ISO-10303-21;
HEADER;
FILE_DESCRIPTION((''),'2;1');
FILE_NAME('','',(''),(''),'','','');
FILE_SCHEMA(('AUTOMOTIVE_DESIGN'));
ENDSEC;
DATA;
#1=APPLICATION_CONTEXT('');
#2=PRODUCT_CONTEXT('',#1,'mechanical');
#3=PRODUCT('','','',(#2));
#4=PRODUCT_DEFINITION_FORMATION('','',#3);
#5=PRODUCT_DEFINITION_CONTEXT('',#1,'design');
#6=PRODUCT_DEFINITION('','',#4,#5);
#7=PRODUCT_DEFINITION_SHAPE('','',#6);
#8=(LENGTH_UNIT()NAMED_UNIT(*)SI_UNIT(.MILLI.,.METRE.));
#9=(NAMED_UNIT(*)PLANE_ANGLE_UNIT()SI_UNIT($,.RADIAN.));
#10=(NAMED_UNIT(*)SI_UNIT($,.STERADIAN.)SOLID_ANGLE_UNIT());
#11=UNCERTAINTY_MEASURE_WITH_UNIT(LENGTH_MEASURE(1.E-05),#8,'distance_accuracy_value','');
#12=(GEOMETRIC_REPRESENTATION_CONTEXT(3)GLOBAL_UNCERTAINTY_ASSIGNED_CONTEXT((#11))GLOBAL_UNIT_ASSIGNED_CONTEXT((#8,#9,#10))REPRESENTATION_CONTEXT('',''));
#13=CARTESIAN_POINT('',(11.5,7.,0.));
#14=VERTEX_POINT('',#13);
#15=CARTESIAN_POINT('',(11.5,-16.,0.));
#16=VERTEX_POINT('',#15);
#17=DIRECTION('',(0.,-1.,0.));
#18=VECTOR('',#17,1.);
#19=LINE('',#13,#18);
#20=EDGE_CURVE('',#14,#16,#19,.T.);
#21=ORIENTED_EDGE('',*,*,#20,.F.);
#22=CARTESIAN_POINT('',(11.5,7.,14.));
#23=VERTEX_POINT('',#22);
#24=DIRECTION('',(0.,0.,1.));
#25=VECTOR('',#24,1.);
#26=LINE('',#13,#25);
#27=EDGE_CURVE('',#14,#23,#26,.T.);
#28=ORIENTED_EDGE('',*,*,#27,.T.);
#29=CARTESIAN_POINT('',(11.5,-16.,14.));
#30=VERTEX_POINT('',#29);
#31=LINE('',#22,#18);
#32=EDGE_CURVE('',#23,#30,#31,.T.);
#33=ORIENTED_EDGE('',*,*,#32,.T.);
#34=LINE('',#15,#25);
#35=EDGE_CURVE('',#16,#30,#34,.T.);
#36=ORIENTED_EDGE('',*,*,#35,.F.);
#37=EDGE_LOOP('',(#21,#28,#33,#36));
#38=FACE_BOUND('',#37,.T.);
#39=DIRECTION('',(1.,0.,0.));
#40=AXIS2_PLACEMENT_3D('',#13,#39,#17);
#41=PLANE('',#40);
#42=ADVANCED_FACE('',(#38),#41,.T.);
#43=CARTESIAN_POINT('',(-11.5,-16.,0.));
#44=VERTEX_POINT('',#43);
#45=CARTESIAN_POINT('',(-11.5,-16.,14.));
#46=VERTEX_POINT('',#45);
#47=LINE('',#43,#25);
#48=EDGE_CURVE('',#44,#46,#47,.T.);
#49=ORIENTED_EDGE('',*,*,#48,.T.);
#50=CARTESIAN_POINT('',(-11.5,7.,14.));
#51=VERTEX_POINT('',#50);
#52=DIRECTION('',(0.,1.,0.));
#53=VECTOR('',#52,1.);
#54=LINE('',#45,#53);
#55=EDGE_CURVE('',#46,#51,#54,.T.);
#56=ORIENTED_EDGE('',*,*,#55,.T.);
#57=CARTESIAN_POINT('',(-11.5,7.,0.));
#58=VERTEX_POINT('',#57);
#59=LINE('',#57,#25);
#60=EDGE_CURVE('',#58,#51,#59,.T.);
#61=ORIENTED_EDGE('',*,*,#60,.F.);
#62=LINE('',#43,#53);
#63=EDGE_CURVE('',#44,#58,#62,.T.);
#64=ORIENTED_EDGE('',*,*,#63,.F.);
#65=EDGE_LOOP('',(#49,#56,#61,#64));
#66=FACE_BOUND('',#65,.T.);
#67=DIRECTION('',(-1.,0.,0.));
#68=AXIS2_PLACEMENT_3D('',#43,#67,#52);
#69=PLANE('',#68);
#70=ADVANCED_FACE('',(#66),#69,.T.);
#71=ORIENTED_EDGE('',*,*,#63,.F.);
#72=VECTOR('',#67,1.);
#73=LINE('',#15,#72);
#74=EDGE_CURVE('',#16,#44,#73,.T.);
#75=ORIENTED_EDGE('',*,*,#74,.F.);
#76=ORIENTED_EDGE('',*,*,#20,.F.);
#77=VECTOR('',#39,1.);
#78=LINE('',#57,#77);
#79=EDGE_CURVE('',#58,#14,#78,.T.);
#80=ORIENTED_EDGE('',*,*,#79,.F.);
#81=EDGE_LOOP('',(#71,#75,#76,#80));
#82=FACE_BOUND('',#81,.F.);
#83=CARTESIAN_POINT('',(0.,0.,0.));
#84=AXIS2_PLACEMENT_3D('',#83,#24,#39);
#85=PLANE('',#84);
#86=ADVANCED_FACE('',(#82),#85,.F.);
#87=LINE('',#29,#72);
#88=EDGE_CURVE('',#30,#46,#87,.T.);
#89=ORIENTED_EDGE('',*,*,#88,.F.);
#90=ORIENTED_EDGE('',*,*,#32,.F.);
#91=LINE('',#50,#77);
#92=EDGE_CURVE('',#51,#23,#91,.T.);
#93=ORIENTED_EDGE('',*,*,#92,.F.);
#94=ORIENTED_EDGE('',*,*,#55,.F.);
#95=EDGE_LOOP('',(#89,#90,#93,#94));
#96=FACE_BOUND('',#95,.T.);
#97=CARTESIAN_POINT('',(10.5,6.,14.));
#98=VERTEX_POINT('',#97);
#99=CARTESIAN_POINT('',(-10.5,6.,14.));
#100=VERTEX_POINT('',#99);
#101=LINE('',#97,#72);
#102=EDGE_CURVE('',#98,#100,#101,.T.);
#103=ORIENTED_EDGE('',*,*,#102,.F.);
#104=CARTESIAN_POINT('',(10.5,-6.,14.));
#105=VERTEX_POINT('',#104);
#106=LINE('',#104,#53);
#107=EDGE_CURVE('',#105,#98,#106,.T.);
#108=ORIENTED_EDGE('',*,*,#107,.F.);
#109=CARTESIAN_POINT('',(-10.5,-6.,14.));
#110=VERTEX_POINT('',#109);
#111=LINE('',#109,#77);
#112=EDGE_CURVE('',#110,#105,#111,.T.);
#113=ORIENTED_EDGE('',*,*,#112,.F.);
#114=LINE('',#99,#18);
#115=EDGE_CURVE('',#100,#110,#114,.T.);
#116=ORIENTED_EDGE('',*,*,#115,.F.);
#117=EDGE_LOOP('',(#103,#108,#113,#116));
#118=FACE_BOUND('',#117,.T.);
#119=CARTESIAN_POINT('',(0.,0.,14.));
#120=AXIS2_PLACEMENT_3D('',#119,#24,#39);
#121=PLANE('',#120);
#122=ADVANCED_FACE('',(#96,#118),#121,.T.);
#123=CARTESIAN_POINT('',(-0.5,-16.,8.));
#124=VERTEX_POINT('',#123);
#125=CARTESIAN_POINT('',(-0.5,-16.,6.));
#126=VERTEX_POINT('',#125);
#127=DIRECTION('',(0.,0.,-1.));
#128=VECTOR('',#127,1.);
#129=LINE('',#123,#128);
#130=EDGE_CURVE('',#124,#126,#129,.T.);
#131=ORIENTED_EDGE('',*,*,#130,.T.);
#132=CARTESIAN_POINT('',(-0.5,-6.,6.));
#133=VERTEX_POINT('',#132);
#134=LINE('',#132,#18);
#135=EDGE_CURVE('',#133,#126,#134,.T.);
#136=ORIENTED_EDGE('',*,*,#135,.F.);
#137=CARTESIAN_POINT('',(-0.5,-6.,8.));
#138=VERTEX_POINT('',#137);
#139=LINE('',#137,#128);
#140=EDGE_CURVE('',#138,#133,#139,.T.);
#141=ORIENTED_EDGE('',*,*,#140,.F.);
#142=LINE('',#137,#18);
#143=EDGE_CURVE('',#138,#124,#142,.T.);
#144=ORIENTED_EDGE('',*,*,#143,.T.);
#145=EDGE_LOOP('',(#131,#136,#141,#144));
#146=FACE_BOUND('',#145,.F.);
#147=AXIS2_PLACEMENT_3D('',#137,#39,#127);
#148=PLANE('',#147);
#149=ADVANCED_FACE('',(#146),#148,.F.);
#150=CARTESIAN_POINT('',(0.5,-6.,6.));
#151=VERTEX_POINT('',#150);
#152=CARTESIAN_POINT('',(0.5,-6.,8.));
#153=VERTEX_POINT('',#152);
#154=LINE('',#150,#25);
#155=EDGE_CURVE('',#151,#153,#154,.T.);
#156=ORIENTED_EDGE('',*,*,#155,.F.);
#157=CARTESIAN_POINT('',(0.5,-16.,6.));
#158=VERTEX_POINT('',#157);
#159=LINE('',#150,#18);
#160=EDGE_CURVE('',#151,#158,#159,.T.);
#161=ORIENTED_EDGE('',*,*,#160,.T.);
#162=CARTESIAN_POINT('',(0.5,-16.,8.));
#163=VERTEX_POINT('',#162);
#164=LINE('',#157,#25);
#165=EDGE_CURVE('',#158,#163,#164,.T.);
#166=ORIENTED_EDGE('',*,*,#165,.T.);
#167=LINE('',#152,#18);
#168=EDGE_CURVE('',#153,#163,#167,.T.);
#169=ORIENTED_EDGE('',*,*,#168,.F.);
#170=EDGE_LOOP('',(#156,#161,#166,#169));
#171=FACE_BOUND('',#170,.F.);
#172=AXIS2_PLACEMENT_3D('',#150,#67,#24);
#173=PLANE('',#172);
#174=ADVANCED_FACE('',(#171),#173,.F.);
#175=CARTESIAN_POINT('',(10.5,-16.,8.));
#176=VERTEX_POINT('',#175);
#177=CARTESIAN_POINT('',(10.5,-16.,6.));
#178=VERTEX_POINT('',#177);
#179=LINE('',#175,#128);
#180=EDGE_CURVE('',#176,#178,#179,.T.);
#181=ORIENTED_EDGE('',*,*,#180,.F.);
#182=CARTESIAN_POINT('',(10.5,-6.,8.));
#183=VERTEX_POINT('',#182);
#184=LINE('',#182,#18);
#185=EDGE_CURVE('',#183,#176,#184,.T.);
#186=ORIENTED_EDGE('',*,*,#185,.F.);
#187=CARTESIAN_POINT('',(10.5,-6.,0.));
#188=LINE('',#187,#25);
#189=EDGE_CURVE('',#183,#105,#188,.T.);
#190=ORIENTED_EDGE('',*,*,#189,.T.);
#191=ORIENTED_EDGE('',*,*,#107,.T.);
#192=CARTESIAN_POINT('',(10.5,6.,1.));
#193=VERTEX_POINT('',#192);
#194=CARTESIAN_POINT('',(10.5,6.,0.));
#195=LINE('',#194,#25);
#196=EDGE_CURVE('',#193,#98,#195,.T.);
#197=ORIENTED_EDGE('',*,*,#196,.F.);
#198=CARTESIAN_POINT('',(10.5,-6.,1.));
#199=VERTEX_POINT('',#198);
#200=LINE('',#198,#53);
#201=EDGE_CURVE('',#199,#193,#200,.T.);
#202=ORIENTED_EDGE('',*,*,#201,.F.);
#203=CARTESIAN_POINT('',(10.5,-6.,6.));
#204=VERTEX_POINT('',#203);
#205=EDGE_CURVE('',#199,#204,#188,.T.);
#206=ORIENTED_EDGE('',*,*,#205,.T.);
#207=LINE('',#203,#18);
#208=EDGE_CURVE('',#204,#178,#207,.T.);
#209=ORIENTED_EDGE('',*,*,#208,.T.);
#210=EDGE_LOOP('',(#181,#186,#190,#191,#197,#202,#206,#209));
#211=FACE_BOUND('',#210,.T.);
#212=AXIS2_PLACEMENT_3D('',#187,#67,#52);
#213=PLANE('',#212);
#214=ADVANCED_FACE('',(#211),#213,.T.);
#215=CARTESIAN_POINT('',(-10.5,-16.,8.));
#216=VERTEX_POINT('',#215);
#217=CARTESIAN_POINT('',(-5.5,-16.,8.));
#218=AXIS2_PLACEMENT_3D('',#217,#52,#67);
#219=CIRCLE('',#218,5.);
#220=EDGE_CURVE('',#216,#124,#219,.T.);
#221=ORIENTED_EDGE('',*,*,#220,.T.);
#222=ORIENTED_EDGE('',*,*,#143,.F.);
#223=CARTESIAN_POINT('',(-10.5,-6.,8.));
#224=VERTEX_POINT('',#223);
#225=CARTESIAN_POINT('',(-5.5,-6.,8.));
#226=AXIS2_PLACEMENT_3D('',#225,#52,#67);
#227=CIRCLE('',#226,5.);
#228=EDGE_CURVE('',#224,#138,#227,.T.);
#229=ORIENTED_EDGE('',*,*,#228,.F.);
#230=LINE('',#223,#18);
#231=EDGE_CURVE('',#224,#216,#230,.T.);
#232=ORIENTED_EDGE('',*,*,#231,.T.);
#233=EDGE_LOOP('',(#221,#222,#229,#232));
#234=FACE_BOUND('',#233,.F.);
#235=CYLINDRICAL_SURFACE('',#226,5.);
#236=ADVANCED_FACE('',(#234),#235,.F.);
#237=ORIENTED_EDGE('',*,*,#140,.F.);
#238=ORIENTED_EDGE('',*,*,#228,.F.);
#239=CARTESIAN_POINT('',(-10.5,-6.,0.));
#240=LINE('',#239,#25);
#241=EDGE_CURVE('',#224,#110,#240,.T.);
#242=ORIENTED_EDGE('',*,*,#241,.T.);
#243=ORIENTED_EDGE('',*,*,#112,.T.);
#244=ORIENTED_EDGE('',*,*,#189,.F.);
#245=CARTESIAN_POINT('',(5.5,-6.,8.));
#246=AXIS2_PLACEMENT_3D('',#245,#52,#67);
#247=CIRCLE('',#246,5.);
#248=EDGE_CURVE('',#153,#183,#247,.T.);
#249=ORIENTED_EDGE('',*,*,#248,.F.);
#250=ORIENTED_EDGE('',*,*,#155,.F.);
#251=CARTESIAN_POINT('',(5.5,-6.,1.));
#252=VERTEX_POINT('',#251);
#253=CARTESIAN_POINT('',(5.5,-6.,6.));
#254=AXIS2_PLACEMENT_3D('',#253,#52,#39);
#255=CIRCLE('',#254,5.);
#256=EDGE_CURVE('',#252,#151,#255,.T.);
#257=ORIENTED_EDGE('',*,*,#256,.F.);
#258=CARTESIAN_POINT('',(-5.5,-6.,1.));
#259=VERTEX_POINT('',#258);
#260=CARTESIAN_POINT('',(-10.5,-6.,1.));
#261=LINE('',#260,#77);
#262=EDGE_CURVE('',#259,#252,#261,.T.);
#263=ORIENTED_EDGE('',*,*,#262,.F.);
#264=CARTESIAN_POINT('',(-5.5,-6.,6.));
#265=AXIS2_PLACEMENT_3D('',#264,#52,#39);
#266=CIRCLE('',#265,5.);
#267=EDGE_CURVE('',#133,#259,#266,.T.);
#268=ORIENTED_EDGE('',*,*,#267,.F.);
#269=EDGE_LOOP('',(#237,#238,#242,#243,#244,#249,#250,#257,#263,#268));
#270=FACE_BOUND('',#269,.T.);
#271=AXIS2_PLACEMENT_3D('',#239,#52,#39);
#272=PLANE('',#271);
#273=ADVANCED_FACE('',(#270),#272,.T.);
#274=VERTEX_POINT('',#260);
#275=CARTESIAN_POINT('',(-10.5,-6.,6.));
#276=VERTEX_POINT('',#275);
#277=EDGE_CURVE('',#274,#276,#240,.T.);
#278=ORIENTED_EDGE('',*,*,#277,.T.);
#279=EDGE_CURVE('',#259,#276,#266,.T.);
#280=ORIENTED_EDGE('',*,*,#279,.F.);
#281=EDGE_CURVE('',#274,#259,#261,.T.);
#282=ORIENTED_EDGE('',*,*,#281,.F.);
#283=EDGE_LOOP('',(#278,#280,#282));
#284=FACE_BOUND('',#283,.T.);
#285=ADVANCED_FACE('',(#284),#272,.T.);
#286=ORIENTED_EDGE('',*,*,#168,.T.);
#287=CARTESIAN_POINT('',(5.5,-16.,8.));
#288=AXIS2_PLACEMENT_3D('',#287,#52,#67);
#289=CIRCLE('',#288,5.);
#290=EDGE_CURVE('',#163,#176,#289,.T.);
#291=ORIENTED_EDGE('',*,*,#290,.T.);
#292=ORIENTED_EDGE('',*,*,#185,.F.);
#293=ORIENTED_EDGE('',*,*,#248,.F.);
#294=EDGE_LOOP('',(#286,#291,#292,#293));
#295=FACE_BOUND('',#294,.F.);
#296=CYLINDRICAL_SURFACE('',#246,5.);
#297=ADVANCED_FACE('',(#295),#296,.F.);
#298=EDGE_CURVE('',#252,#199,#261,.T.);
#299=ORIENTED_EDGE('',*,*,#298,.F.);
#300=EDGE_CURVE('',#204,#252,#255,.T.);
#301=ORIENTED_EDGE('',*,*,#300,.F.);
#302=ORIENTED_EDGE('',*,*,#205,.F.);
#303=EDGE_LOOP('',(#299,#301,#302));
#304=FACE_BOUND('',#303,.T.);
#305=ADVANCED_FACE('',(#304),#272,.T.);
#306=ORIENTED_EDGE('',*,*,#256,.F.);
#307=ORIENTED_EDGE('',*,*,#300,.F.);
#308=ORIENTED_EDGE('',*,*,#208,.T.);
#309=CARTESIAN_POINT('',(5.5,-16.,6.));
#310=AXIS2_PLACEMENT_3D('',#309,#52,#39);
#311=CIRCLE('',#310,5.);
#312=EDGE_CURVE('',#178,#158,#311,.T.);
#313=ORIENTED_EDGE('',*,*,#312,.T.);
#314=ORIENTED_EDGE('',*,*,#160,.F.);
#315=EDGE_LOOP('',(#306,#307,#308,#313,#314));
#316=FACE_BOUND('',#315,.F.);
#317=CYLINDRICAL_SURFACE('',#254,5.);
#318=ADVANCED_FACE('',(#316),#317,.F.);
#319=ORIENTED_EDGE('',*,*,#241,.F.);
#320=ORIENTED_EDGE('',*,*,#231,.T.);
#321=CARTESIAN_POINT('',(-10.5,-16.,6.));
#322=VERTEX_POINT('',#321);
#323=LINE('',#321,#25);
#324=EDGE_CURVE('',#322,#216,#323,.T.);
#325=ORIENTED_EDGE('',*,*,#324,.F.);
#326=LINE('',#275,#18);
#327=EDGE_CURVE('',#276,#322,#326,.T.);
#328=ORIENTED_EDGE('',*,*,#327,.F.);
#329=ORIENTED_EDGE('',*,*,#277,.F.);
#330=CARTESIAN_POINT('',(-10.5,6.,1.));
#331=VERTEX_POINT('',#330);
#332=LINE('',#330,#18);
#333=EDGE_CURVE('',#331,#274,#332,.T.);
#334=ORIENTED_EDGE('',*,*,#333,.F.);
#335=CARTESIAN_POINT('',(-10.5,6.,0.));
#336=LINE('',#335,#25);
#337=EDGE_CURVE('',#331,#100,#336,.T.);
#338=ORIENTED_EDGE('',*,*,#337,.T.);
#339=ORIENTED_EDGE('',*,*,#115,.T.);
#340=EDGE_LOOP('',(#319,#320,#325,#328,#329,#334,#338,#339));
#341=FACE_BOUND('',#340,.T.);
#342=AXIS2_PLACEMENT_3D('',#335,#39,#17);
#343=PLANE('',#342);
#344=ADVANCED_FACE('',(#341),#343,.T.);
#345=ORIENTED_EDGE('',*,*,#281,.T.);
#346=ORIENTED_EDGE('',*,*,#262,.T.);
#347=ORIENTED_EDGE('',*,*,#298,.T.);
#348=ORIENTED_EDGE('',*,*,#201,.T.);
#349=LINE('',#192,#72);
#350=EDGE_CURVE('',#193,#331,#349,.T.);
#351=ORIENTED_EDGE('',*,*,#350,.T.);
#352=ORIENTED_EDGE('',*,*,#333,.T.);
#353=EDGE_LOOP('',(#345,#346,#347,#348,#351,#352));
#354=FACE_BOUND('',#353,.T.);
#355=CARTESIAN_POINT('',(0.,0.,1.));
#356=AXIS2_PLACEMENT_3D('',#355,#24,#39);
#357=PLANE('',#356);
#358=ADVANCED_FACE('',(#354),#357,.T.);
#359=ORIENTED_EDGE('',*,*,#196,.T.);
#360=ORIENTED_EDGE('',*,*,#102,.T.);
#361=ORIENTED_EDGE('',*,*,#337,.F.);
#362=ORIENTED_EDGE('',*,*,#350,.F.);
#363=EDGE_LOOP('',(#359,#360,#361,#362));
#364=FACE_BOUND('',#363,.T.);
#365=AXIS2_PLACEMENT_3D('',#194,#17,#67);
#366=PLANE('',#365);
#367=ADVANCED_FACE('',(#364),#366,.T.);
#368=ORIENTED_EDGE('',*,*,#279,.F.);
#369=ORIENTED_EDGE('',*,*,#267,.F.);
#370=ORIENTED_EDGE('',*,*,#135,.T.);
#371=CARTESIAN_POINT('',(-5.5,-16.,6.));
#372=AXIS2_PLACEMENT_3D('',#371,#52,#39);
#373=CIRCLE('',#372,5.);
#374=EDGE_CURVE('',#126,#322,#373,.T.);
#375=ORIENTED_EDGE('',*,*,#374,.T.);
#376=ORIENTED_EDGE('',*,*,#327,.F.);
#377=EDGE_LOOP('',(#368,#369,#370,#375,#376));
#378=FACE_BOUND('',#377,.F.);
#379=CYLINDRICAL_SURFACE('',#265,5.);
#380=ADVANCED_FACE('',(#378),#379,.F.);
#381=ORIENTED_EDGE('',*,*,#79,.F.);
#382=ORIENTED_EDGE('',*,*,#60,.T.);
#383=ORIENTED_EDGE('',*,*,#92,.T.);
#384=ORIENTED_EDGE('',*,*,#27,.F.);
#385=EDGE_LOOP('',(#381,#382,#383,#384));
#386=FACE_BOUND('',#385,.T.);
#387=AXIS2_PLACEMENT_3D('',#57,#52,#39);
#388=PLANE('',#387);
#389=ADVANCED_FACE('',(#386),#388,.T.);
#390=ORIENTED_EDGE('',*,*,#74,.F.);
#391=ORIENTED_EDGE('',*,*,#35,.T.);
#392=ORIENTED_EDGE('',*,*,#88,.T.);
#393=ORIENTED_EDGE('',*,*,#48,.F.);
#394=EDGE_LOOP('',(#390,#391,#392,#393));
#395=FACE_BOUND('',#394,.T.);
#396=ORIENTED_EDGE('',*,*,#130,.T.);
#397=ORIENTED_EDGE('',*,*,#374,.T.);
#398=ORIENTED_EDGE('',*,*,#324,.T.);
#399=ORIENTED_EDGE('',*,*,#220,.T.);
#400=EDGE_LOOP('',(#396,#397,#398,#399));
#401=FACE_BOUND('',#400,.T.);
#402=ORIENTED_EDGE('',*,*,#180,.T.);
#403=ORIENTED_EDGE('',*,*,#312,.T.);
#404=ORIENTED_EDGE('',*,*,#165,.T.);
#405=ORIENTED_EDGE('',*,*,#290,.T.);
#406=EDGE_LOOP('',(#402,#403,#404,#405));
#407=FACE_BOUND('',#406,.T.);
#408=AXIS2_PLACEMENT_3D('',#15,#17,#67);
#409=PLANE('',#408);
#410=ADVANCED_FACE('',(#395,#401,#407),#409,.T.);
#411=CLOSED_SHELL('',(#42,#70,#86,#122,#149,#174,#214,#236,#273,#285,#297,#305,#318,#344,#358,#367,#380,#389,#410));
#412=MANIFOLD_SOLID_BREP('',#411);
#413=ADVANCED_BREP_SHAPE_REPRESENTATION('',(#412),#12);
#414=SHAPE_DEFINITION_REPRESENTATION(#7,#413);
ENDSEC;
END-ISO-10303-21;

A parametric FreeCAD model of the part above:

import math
import FreeCAD as App
import Part
import Sketcher
from FreeCAD import Vector

doc = App.newDocument("Part")
body = doc.addObject("PartDesign::Body", "Body")

sketch1 = body.newObject("Sketcher::SketchObject", "Sketch")
sketch1.AttachmentSupport = (doc.getObject("XY_Plane"), [""])
sketch1.MapMode = "FlatFace"
sketch1.addGeometry([
    Part.LineSegment(Vector(12, 7, 0), Vector(-12, 7, 0)),
    Part.LineSegment(Vector(-12, 7, 0), Vector(-12, -16, 0)),
    Part.LineSegment(Vector(-12, -16, 0), Vector(12, -16, 0)),
    Part.LineSegment(Vector(12, -16, 0), Vector(12, 7, 0)),
    Part.LineSegment(Vector(10, -6, 0), Vector(-10, -6, 0)),
    Part.LineSegment(Vector(-10, -6, 0), Vector(-10, 6, 0)),
    Part.LineSegment(Vector(-10, 6, 0), Vector(10, 6, 0)),
    Part.LineSegment(Vector(10, 6, 0), Vector(10, -6, 0)),
], False)
sketch1.addConstraint([
    Sketcher.Constraint("Coincident", 0, 2, 1, 1),
    Sketcher.Constraint("Coincident", 1, 2, 2, 1),
    Sketcher.Constraint("Coincident", 2, 2, 3, 1),
    Sketcher.Constraint("Coincident", 3, 2, 0, 1),
    Sketcher.Constraint("Coincident", 4, 2, 5, 1),
    Sketcher.Constraint("Coincident", 5, 2, 6, 1),
    Sketcher.Constraint("Coincident", 6, 2, 7, 1),
    Sketcher.Constraint("Coincident", 7, 2, 4, 1),
    Sketcher.Constraint("Horizontal", 0),
    Sketcher.Constraint("Vertical", 1),
    Sketcher.Constraint("Horizontal", 2),
    Sketcher.Constraint("Vertical", 3),
    Sketcher.Constraint("Horizontal", 4),
    Sketcher.Constraint("Vertical", 5),
    Sketcher.Constraint("Horizontal", 6),
    Sketcher.Constraint("Vertical", 7),
    Sketcher.Constraint("Symmetric", 4, 2, 6, 2, -1, 1),
    Sketcher.Constraint("Equal", 2, 1),
    Sketcher.Constraint("DistanceX", 4, 2, 4, 1, 21.0),
    Sketcher.Constraint("DistanceY", 5, 1, 5, 2, 12.0),
    Sketcher.Constraint("DistanceX", 1, 2, 4, 2, 1.0),
    Sketcher.Constraint("DistanceY", 1, 2, 4, 2, 10.0),
    Sketcher.Constraint("DistanceY", 5, 2, 0, 2, 1.0),
])
pad1 = body.newObject("PartDesign::Pad", "Pad")
pad1.Profile = sketch1
pad1.Length = 14

sketch2 = body.newObject("Sketcher::SketchObject", "Sketch001")
sketch2.AttachmentSupport = (doc.getObject("XY_Plane"), [""])
sketch2.MapMode = "FlatFace"
sketch2.addGeometry([
    Part.LineSegment(Vector(-10, 6, 0), Vector(-10, -6, 0)),
    Part.LineSegment(Vector(-10, -6, 0), Vector(10, -6, 0)),
    Part.LineSegment(Vector(10, -6, 0), Vector(10, 6, 0)),
    Part.LineSegment(Vector(10, 6, 0), Vector(-10, 6, 0)),
], False)
sketch2.addConstraint([
    Sketcher.Constraint("Coincident", 0, 2, 1, 1),
    Sketcher.Constraint("Coincident", 1, 2, 2, 1),
    Sketcher.Constraint("Coincident", 2, 2, 3, 1),
    Sketcher.Constraint("Coincident", 3, 2, 0, 1),
    Sketcher.Constraint("Vertical", 0),
    Sketcher.Constraint("Horizontal", 1),
    Sketcher.Constraint("Vertical", 2),
    Sketcher.Constraint("Horizontal", 3),
    Sketcher.Constraint("Symmetric", 0, 2, 2, 2, -1, 1),
    Sketcher.Constraint("DistanceX", 1, 1, 1, 2, 21.0),
    Sketcher.Constraint("DistanceY", 0, 2, 0, 1, 12.0),
])
pad2 = body.newObject("PartDesign::Pad", "Pad001")
pad2.Profile = sketch2
pad2.Length = 1

sketch3 = body.newObject("Sketcher::SketchObject", "Sketch002")
sketch3.AttachmentSupport = (doc.getObject("XZ_Plane"), [""])
sketch3.MapMode = "FlatFace"
sketch3.AttachmentOffset = App.Placement(Vector(0, 0, 6), App.Rotation())
sketch3.addGeometry([
    Part.ArcOfCircle(Part.Circle(Vector(-5.5, 8, 0), Vector(0, 0, 1), 5), math.radians(0), math.radians(180)),
    Part.LineSegment(Vector(-0.5, 8, 0), Vector(-0.5, 6, 0)),
    Part.ArcOfCircle(Part.Circle(Vector(-5.5, 6, 0), Vector(0, 0, 1), 5), math.radians(180), math.radians(360)),
    Part.LineSegment(Vector(-10.5, 6, 0), Vector(-10.5, 8, 0)),
], False)
sketch3.addConstraint([
    Sketcher.Constraint("Tangent", 0, 1, 1, 1),
    Sketcher.Constraint("Tangent", 1, 2, 2, 2),
    Sketcher.Constraint("Tangent", 2, 1, 3, 1),
    Sketcher.Constraint("Tangent", 3, 2, 0, 2),
    Sketcher.Constraint("Vertical", 1),
    Sketcher.Constraint("Vertical", 3),
    Sketcher.Constraint("Radius", 0, 5.0),
    Sketcher.Constraint("DistanceY", 1, 2, 1, 1, 2.0),
    Sketcher.Constraint("DistanceY", -1, 1, 0, 3, 8.0),
    Sketcher.Constraint("DistanceX", 0, 3, -1, 1, 5.5),
])
pocket1 = body.newObject("PartDesign::Pocket", "Pocket")
pocket1.Profile = sketch3
pocket1.Length = 10
pocket1.Reversed = True
doc.recompute()

linearpattern = body.newObject("PartDesign::LinearPattern", "LinearPattern")
linearpattern.Originals = [pocket1]
linearpattern.Direction = (doc.getObject("X_Axis"), [""])
linearpattern.Mode = "offset"
linearpattern.Offset = 11
linearpattern.Occurrences = 2
body.Tip = linearpattern

doc.recompute()
